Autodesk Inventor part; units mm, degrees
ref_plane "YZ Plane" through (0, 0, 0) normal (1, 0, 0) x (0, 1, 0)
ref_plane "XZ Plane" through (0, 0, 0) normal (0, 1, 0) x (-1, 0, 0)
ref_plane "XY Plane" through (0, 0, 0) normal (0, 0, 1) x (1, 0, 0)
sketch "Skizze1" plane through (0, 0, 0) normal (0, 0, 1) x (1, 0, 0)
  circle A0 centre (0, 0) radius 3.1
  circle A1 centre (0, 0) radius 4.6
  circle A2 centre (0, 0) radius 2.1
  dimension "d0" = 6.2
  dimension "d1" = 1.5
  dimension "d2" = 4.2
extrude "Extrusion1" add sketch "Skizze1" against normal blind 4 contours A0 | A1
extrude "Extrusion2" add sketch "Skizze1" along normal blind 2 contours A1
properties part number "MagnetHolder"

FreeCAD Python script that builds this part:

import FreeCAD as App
import Part
import Sketcher

V = App.Vector
Q = App.Units.Quantity

doc = App.newDocument("Part")
body = doc.addObject("PartDesign::Body", "Body")

sketch1 = doc.addObject("Sketcher::SketchObject", "Sketch")
body.addObject(sketch1)
sketch1.AttachmentSupport = (doc.XY_Plane, [""])
sketch1.MapMode = "FlatFace"
sketch1.addGeometry(Part.Circle(V(0, 0, 0), V(0, 0, 1), 4.6), False)
sketch1.addGeometry(Part.Circle(V(0, 0, 0), V(0, 0, 1), 2.1), False)
sketch1.addConstraint(Sketcher.Constraint("Coincident", 0, 3, -1, 1))
sketch1.addConstraint(Sketcher.Constraint("Coincident", 1, 3, -1, 1))
sketch1.addConstraint(Sketcher.Constraint("Diameter", 1, Q("4.2 mm")))
sketch1.addConstraint(Sketcher.Constraint("Diameter", 0, Q("9.2 mm")))
pad1 = doc.addObject("PartDesign::Pad", "Pad")
body.addObject(pad1)
pad1.Profile = sketch1
pad1.Length = 4
pad1.Reversed = True

sketch2 = doc.addObject("Sketcher::SketchObject", "Sketch001")
body.addObject(sketch2)
sketch2.AttachmentSupport = (doc.XY_Plane, [""])
sketch2.MapMode = "FlatFace"
sketch2.addGeometry(Part.Circle(V(0, 0, 0), V(0, 0, 1), 4.6), False)
sketch2.addGeometry(Part.Circle(V(0, 0, 0), V(0, 0, 1), 3.1), False)
sketch2.addConstraint(Sketcher.Constraint("Coincident", 0, 3, -1, 1))
sketch2.addConstraint(Sketcher.Constraint("Coincident", 1, 3, -1, 1))
sketch2.addConstraint(Sketcher.Constraint("Diameter", 1, Q("6.2 mm")))
sketch2.addConstraint(Sketcher.Constraint("Diameter", 0, Q("9.2 mm")))
pad2 = doc.addObject("PartDesign::Pad", "Pad001")
body.addObject(pad2)
pad2.Profile = sketch2
pad2.Length = 2

doc.recompute()
